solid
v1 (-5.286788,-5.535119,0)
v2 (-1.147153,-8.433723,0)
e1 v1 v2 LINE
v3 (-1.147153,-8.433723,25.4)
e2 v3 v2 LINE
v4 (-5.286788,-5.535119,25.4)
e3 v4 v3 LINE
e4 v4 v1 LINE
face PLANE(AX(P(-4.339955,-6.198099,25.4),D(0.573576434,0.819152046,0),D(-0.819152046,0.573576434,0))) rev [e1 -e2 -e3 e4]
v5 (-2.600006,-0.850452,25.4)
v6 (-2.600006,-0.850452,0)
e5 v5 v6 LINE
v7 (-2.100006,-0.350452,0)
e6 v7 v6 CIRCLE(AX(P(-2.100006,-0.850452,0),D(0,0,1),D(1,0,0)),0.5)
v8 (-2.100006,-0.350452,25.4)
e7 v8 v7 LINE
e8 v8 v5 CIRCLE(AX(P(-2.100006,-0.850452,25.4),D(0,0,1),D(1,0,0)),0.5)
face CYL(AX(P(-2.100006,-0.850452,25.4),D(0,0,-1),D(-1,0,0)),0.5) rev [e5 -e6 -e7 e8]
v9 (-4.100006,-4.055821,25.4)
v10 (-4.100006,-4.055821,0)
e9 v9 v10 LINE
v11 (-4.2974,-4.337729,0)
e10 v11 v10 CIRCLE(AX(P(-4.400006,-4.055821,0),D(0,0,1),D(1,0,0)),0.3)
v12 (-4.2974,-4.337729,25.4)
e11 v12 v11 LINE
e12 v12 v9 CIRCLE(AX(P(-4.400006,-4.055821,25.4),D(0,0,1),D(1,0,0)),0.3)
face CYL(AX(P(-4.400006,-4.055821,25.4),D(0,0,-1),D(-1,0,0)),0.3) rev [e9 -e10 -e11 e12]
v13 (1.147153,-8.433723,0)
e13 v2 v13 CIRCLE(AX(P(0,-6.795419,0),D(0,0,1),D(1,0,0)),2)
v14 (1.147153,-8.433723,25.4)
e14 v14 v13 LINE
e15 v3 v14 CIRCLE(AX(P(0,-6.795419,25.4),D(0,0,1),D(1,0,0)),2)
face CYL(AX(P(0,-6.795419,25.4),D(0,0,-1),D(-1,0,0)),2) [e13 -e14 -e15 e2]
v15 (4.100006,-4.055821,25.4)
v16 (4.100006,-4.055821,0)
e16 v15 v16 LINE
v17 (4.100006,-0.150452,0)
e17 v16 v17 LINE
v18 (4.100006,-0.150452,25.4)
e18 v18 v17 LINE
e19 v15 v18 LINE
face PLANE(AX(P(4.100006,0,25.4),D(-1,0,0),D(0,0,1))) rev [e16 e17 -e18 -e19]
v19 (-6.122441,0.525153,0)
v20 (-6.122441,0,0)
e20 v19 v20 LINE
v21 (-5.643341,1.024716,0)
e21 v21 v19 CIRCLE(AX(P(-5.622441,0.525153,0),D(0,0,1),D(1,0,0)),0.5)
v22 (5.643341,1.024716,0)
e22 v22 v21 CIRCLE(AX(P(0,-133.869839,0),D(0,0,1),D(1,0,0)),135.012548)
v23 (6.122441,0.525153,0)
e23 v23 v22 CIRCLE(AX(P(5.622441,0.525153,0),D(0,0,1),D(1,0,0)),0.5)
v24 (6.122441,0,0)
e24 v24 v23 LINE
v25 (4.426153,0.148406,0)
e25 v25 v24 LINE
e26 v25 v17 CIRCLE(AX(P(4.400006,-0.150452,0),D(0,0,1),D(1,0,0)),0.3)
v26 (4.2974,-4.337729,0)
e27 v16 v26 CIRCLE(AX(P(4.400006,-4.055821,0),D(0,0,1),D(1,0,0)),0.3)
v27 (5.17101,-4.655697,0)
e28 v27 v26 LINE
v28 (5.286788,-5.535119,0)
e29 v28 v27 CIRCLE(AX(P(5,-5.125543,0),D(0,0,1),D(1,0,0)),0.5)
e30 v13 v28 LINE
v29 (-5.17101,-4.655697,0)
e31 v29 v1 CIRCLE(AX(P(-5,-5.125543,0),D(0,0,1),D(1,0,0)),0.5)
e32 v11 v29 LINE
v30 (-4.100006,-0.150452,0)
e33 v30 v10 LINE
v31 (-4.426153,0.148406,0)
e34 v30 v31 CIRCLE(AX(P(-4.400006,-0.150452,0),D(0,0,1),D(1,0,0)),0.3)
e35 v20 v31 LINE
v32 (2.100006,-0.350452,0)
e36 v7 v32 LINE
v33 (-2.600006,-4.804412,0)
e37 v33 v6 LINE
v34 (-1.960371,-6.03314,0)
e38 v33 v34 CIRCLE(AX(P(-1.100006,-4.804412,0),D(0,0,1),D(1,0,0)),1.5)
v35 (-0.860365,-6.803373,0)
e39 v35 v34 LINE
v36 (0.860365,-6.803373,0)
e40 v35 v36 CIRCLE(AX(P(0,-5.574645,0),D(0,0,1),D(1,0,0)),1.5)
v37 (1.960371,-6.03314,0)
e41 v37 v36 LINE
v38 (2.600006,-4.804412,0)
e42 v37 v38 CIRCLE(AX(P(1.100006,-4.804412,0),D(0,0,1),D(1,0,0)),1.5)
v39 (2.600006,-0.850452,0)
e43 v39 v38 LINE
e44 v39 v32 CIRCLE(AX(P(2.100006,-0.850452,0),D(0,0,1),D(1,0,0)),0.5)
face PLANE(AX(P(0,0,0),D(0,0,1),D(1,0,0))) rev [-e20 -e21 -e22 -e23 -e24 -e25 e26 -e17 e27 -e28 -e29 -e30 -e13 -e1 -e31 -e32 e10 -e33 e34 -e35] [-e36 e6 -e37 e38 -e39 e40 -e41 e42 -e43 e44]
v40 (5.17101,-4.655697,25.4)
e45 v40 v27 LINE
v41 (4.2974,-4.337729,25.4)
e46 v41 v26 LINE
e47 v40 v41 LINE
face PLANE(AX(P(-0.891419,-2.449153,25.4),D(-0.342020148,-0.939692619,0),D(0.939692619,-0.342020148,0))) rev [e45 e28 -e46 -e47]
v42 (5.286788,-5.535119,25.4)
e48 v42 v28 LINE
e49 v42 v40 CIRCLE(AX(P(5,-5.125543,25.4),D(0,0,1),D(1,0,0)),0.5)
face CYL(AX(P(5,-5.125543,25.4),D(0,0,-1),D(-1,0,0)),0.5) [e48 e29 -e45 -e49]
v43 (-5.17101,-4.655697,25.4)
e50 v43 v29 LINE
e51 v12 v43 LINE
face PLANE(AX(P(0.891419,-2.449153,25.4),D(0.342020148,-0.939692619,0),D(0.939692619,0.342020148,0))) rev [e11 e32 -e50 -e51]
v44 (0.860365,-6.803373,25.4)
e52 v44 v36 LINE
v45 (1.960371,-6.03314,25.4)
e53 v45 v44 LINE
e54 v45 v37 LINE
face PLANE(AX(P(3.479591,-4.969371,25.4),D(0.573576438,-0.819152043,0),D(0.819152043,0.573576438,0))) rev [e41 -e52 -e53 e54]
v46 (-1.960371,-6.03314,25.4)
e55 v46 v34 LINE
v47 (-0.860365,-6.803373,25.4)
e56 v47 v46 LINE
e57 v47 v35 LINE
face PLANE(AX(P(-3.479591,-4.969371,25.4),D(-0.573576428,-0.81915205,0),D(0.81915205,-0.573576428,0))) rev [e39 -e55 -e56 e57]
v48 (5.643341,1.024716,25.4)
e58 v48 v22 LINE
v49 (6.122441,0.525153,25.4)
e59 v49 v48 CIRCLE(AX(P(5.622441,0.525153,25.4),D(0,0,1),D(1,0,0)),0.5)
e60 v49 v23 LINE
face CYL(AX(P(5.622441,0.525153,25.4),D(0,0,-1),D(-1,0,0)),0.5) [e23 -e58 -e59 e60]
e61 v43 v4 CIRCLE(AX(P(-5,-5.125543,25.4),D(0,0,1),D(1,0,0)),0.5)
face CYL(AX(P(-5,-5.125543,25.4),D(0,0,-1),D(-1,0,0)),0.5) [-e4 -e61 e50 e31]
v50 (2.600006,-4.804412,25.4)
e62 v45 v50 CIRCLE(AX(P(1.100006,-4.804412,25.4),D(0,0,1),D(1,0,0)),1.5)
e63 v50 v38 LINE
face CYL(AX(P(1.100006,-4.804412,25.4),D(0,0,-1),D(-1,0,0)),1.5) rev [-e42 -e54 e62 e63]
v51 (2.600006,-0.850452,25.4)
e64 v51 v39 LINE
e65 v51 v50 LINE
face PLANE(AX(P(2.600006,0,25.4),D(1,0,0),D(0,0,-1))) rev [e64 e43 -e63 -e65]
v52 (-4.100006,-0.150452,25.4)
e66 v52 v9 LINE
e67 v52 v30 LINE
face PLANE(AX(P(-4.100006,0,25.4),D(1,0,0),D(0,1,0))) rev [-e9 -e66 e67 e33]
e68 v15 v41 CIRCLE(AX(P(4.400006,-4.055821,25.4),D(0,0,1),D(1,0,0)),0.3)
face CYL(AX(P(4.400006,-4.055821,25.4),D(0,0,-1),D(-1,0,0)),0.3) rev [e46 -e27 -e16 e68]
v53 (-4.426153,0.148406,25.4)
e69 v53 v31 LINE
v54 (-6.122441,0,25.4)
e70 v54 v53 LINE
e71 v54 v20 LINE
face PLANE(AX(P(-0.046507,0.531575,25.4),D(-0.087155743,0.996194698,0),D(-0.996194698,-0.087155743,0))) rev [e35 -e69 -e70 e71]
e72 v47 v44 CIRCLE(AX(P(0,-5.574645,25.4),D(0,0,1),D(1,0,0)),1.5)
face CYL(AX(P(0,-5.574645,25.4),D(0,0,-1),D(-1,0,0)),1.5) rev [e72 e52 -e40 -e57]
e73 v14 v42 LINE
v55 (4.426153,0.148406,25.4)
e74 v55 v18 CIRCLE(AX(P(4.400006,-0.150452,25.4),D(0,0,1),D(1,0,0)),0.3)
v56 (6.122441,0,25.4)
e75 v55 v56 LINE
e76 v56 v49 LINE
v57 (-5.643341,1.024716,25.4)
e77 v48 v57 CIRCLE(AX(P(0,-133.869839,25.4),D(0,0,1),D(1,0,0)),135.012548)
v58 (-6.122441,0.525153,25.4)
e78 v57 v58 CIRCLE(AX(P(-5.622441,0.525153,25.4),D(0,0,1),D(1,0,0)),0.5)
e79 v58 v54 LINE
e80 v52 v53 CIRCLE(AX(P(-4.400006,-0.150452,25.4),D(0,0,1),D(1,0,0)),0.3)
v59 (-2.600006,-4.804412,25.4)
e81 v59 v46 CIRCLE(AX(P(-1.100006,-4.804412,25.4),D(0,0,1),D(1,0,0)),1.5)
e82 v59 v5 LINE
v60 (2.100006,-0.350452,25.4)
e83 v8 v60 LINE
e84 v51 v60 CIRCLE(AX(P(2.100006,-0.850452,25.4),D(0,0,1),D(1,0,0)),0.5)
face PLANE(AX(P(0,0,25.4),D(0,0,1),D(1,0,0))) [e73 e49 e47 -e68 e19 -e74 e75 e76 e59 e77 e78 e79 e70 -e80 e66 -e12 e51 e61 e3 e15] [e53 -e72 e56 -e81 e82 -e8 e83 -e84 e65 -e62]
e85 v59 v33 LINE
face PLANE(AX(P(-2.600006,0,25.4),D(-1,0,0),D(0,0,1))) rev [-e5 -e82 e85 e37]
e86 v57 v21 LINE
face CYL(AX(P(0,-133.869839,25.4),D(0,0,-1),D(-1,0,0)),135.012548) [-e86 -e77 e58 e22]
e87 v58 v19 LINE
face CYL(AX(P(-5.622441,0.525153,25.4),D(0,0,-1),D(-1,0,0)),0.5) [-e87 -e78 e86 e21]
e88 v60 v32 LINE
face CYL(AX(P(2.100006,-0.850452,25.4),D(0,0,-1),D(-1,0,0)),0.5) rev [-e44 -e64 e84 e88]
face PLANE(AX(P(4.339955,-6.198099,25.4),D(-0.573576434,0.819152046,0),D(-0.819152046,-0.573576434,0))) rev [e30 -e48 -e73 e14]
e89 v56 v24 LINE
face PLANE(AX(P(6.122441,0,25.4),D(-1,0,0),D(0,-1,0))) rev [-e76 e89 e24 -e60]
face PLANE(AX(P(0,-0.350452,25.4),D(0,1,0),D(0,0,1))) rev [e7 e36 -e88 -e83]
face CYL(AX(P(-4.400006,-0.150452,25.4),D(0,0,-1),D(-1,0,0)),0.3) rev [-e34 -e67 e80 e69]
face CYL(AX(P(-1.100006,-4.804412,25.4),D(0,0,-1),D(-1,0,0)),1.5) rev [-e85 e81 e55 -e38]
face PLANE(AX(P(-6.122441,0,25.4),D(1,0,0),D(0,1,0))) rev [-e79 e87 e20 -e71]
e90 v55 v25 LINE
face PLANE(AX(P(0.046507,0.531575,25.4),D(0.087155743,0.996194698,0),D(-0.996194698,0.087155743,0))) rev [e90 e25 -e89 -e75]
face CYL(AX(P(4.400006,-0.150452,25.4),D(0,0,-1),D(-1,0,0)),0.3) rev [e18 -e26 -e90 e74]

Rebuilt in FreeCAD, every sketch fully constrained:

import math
import FreeCAD as App
import Part
import Sketcher

V = App.Vector
Q = App.Units.Quantity

doc = App.newDocument("Part")
body = doc.addObject("PartDesign::Body", "Body")

# Sketch on XY plane
sketch1 = body.newObject("Sketcher::SketchObject", "Sketch")
sketch1.AttachmentSupport = (doc.getObject("XY_Plane"), [""])
sketch1.MapMode = "FlatFace"
sketch1.addGeometry([
    Part.ArcOfCircle(Part.Circle(V(0, -133.869839, 0), V(0, 0, 1), 135.012548), math.radians(87.604417), math.radians(92.395583)),  # 0
    Part.ArcOfCircle(Part.Circle(V(-5.622441, 0.525153, 0), V(0, 0, 1), 0.5), math.radians(92.395584), math.radians(180)),  # 1
    Part.LineSegment(V(-6.122441, 0.525153, 0), V(-6.122441, 0, 0)),  # 2
    Part.LineSegment(V(-6.122441, 0, 0), V(-4.426153, 0.148406, 0)),  # 3
    Part.ArcOfCircle(Part.Circle(V(-4.400006, -0.150452, 0), V(0, 0, 1), 0.3), math.radians(0), math.radians(95)),  # 4
    Part.LineSegment(V(-4.100006, -0.150452, 0), V(-4.100006, -4.055821, 0)),  # 5
    Part.ArcOfCircle(Part.Circle(V(-4.400006, -4.055821, 0), V(0, 0, 1), 0.3), math.radians(-70.000001), math.radians(0.000004)),  # 6
    Part.LineSegment(V(-4.2974, -4.337729, 0), V(-5.17101, -4.655697, 0)),  # 7
    Part.ArcOfCircle(Part.Circle(V(-5, -5.125543, 0), V(0, 0, 1), 0.5), math.radians(110), math.radians(235)),  # 8
    Part.LineSegment(V(-5.286788, -5.535119, 0), V(-1.147153, -8.433723, 0)),  # 9
    Part.ArcOfCircle(Part.Circle(V(0, -6.795419, 0), V(0, 0, 1), 2), math.radians(-125), math.radians(-55)),  # 10
    Part.LineSegment(V(1.147153, -8.433723, 0), V(5.286788, -5.535119, 0)),  # 11
    Part.ArcOfCircle(Part.Circle(V(5, -5.125543, 0), V(0, 0, 1), 0.5), math.radians(-55), math.radians(70)),  # 12
    Part.LineSegment(V(5.17101, -4.655697, 0), V(4.2974, -4.337729, 0)),  # 13
    Part.ArcOfCircle(Part.Circle(V(4.400006, -4.055821, 0), V(0, 0, 1), 0.3), math.radians(180), math.radians(250)),  # 14
    Part.LineSegment(V(4.100006, -4.055821, 0), V(4.100006, -0.150452, 0)),  # 15
    Part.ArcOfCircle(Part.Circle(V(4.400006, -0.150452, 0), V(0, 0, 1), 0.3), math.radians(85), math.radians(180)),  # 16
    Part.LineSegment(V(4.426153, 0.148406, 0), V(6.122441, 0, 0)),  # 17
    Part.LineSegment(V(6.122441, 0, 0), V(6.122441, 0.525153, 0)),  # 18
    Part.ArcOfCircle(Part.Circle(V(5.622441, 0.525153, 0), V(0, 0, 1), 0.5), math.radians(0), math.radians(87.604416)),  # 19
    Part.ArcOfCircle(Part.Circle(V(-2.100006, -0.850452, 0), V(0, 0, 1), 0.5), math.radians(90), math.radians(180)),  # 20
    Part.LineSegment(V(-2.100006, -0.350452, 0), V(2.100006, -0.350452, 0)),  # 21
    Part.ArcOfCircle(Part.Circle(V(2.100006, -0.850452, 0), V(0, 0, 1), 0.5), math.radians(0), math.radians(90)),  # 22
    Part.LineSegment(V(2.600006, -0.850452, 0), V(2.600006, -4.804412, 0)),  # 23
    Part.ArcOfCircle(Part.Circle(V(1.100006, -4.804412, 0), V(0, 0, 1), 1.5), math.radians(-55), math.radians(0)),  # 24
    Part.LineSegment(V(1.960371, -6.03314, 0), V(0.860365, -6.803373, 0)),  # 25
    Part.ArcOfCircle(Part.Circle(V(0, -5.574645, 0), V(0, 0, 1), 1.5), math.radians(-124.999999), math.radians(-55)),  # 26
    Part.LineSegment(V(-0.860365, -6.803373, 0), V(-1.960371, -6.03314, 0)),  # 27
    Part.ArcOfCircle(Part.Circle(V(-1.100006, -4.804412, 0), V(0, 0, 1), 1.5), math.radians(-180), math.radians(-124.999999)),  # 28
    Part.LineSegment(V(-2.600006, -4.804412, 0), V(-2.600006, -0.850452, 0)),  # 29
], False)
sketch1.addConstraint([
    Sketcher.Constraint("Coincident", 0, 2, 1, 1),
    Sketcher.Constraint("Coincident", 1, 2, 2, 1),
    Sketcher.Constraint("Coincident", 2, 2, 3, 1),
    Sketcher.Constraint("Coincident", 3, 2, 4, 2),
    Sketcher.Constraint("Coincident", 4, 1, 5, 1),
    Sketcher.Constraint("Coincident", 5, 2, 6, 2),
    Sketcher.Constraint("Coincident", 6, 1, 7, 1),
    Sketcher.Constraint("Coincident", 7, 2, 8, 1),
    Sketcher.Constraint("Coincident", 8, 2, 9, 1),
    Sketcher.Constraint("Coincident", 9, 2, 10, 1),
    Sketcher.Constraint("Coincident", 10, 2, 11, 1),
    Sketcher.Constraint("Coincident", 11, 2, 12, 1),
    Sketcher.Constraint("Coincident", 12, 2, 13, 1),
    Sketcher.Constraint("Coincident", 13, 2, 14, 2),
    Sketcher.Constraint("Coincident", 14, 1, 15, 1),
    Sketcher.Constraint("Coincident", 15, 2, 16, 2),
    Sketcher.Constraint("Coincident", 16, 1, 17, 1),
    Sketcher.Constraint("Coincident", 17, 2, 18, 1),
    Sketcher.Constraint("Coincident", 18, 2, 19, 1),
    Sketcher.Constraint("Coincident", 19, 2, 0, 1),
    Sketcher.Constraint("Coincident", 20, 1, 21, 1),
    Sketcher.Constraint("Coincident", 21, 2, 22, 2),
    Sketcher.Constraint("Coincident", 22, 1, 23, 1),
    Sketcher.Constraint("Coincident", 23, 2, 24, 2),
    Sketcher.Constraint("Coincident", 24, 1, 25, 1),
    Sketcher.Constraint("Coincident", 25, 2, 26, 2),
    Sketcher.Constraint("Coincident", 26, 1, 27, 1),
    Sketcher.Constraint("Coincident", 27, 2, 28, 2),
    Sketcher.Constraint("Coincident", 28, 1, 29, 1),
    Sketcher.Constraint("Coincident", 29, 2, 20, 2),
    Sketcher.Constraint("Vertical", 2),
    Sketcher.Constraint("Vertical", 5),
    Sketcher.Constraint("Vertical", 15),
    Sketcher.Constraint("Vertical", 18),
    Sketcher.Constraint("Horizontal", 21),
    Sketcher.Constraint("Vertical", 23),
    Sketcher.Constraint("Vertical", 29),
    Sketcher.Constraint("PointOnObject", 0, 3, -2),
    Sketcher.Constraint("PointOnObject", 10, 3, -2),
    Sketcher.Constraint("PointOnObject", 26, 3, -2),
    Sketcher.Constraint("PointOnObject", 2, 2, -1),
    Sketcher.Constraint("PointOnObject", 17, 2, -1),
    Sketcher.Constraint("Radius", 10, Q("2 mm")),
    Sketcher.Constraint("Radius", 1, Q("0.5 mm")),
    Sketcher.Constraint("Radius", 4, Q("0.3 mm")),
    Sketcher.Constraint("Radius", 6, Q("0.3 mm")),
    Sketcher.Constraint("Radius", 8, Q("0.5 mm")),
    Sketcher.Constraint("Radius", 12, Q("0.5 mm")),
    Sketcher.Constraint("Radius", 14, Q("0.3 mm")),
    Sketcher.Constraint("Radius", 16, Q("0.3 mm")),
    Sketcher.Constraint("Radius", 19, Q("0.5 mm")),
    Sketcher.Constraint("Radius", 20, Q("0.5 mm")),
    Sketcher.Constraint("Radius", 22, Q("0.5 mm")),
    Sketcher.Constraint("Radius", 24, Q("1.5 mm")),
    Sketcher.Constraint("Radius", 26, Q("1.5 mm")),
    Sketcher.Constraint("Radius", 28, Q("1.5 mm")),
    Sketcher.Constraint("DistanceX", 8, 3, -1, 1, Q("5 mm")),
    Sketcher.Constraint("DistanceX", -1, 1, 12, 3, Q("5 mm")),
    Sketcher.Constraint("DistanceX", 5, 2, 28, 3, Q("3 mm")),
    Sketcher.Constraint("DistanceX", 22, 3, 15, 2, Q("2 mm")),
    Sketcher.Constraint("DistanceX", 4, 1, 20, 1, Q("2 mm")),
    Sketcher.Constraint("DistanceX", 21, 2, 15, 2, Q("2 mm")),
    Sketcher.Constraint("DistanceY", 20, 3, 4, 3, Q("0.7 mm")),
    Sketcher.Constraint("DistanceY", 22, 3, 16, 3, Q("0.7 mm")),
    Sketcher.Constraint("DistanceY", 22, 3, 15, 2, Q("0.7 mm")),
    Sketcher.Constraint("DistanceY", 20, 1, 4, 1, Q("0.2 mm")),
    Sketcher.Constraint("DistanceY", 22, 1, 21, 2, Q("0.5 mm")),
    Sketcher.Constraint("DistanceY", 29, 2, 20, 1, Q("0.5 mm")),
    Sketcher.Constraint("Radius", 0, Q("135.012548 mm")),
    Sketcher.Constraint("DistanceY", 5, 2, 5, 1, Q("3.905369 mm")),
    Sketcher.Constraint("DistanceY", 15, 1, 15, 2, Q("3.905369 mm")),
    Sketcher.Constraint("DistanceY", 23, 2, 23, 1, Q("3.95396 mm")),
    Sketcher.Constraint("DistanceY", 29, 1, 29, 2, Q("3.95396 mm")),
    Sketcher.Constraint("DistanceX", 6, 1, -1, 1, Q("4.2974 mm")),
    Sketcher.Constraint("DistanceX", -1, 1, 13, 2, Q("4.2974 mm")),
    Sketcher.Constraint("DistanceY", 26, 3, 8, 3, Q("0.449101 mm")),
    Sketcher.Constraint("DistanceX", 0, 2, 1, 3, Q("0.020899 mm")),
    Sketcher.Constraint("DistanceY", 8, 2, 6, 3, Q("1.479298 mm")),
    Sketcher.Constraint("DistanceY", 8, 2, 5, 2, Q("1.479298 mm")),
    Sketcher.Constraint("DistanceY", 11, 2, 14, 3, Q("1.479298 mm")),
    Sketcher.Constraint("DistanceY", 11, 2, 14, 1, Q("1.479298 mm")),
    Sketcher.Constraint("DistanceX", 19, 3, 19, 2, Q("0.020899 mm")),
    Sketcher.Constraint("Distance", 3, Q("1.702768 mm")),
    Sketcher.Constraint("Distance", 9, Q("5.053562 mm")),
    Sketcher.Constraint("Distance", 11, Q("5.053562 mm")),
    Sketcher.Constraint("Distance", 17, Q("1.702768 mm")),
    Sketcher.Constraint("Distance", 25, Q("1.342859 mm")),
    Sketcher.Constraint("Distance", 27, Q("1.34286 mm")),
    Sketcher.Constraint("DistanceX", 21, 1, 21, 2, Q("4.200012 mm")),
    Sketcher.Constraint("DistanceY", 2, 2, 2, 1, Q("0.525153 mm")),
    Sketcher.Constraint("DistanceY", 18, 1, 18, 2, Q("0.525153 mm")),
    Sketcher.Constraint("DistanceY", 0, 3, -1, 1, Q("133.869839 mm")),
    Sketcher.Constraint("DistanceX", 1, 3, -1, 1, Q("5.622441 mm")),
    Sketcher.Constraint("DistanceY", 6, 3, -1, 1, Q("4.055821 mm")),
    Sketcher.Constraint("DistanceY", 10, 3, -1, 1, Q("6.795419 mm")),
    Sketcher.Constraint("DistanceX", -1, 1, 19, 3, Q("5.622441 mm")),
    Sketcher.Constraint("DistanceY", 6, 1, -1, 1, Q("4.337729 mm")),
    Sketcher.Constraint("DistanceX", 7, 2, -1, 1, Q("5.17101 mm")),
    Sketcher.Constraint("DistanceX", 8, 2, -1, 1, Q("5.286788 mm")),
    Sketcher.Constraint("DistanceX", -1, 1, 11, 2, Q("5.286788 mm")),
    Sketcher.Constraint("DistanceX", -1, 1, 12, 2, Q("5.17101 mm")),
    Sketcher.Constraint("DistanceX", -1, 1, 24, 1, Q("1.960371 mm")),
    Sketcher.Constraint("DistanceY", 24, 1, -1, 1, Q("6.03314 mm")),
    Sketcher.Constraint("DistanceX", 27, 2, -1, 1, Q("1.960371 mm")),
    Sketcher.Constraint("DistanceY", 27, 2, -1, 1, Q("6.03314 mm")),
])
pad1 = body.newObject("PartDesign::Pad", "Pad")
pad1.Profile = sketch1
pad1.Length = 25.4

doc.recompute()
